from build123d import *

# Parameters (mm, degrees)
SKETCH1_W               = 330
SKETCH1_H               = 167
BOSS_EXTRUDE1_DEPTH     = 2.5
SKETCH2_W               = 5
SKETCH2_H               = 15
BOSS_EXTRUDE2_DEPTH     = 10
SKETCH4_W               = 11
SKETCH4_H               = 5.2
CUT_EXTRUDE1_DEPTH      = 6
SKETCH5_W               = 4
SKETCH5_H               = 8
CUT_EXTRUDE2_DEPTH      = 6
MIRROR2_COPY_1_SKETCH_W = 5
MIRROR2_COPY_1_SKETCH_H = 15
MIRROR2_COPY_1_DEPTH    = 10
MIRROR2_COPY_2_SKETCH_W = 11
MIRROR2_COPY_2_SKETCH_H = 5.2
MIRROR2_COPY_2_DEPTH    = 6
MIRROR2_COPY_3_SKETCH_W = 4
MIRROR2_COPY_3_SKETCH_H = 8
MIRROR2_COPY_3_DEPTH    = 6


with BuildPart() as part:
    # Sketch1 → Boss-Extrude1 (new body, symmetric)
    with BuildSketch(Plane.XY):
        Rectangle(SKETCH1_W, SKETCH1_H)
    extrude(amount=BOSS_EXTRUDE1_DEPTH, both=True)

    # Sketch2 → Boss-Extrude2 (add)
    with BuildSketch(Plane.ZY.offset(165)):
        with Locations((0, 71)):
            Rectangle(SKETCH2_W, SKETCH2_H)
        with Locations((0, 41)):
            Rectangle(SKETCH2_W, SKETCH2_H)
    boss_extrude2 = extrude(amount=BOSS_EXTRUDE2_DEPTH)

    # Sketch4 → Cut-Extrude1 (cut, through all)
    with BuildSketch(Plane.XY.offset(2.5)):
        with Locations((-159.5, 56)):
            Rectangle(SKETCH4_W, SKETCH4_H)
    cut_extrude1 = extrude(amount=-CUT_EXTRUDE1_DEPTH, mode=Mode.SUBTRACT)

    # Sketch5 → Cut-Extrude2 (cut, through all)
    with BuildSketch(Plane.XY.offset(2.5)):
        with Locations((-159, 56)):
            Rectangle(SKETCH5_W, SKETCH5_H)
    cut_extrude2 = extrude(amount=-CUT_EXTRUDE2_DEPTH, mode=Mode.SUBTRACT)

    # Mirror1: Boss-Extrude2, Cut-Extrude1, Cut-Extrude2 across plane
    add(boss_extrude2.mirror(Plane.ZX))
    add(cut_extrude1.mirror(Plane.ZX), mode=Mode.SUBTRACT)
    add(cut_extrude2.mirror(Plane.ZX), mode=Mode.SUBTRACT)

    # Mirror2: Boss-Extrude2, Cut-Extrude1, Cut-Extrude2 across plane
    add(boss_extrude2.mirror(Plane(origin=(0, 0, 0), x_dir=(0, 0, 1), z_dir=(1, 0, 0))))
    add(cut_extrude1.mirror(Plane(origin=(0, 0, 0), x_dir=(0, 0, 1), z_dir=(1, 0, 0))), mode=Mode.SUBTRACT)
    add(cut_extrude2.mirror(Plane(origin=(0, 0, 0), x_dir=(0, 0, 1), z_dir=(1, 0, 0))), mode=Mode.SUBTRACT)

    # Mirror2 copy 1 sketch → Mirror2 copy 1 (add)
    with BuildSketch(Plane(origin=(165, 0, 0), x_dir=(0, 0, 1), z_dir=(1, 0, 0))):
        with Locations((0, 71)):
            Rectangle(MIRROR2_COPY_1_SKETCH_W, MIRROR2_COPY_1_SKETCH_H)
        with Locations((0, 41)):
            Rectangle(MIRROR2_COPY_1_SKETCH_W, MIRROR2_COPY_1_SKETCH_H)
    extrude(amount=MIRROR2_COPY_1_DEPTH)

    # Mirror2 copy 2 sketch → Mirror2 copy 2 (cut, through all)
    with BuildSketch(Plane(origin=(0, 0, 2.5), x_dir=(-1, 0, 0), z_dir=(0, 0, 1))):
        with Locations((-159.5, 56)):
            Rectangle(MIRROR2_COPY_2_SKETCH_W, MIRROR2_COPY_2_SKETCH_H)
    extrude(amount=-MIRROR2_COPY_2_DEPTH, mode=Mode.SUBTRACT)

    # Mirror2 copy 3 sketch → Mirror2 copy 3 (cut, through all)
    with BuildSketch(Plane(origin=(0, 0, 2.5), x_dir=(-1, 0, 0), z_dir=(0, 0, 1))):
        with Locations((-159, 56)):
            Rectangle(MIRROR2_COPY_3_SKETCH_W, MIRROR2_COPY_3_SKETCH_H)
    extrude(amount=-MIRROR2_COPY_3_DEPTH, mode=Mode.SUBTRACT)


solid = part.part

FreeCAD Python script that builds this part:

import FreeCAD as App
import Part
import Sketcher
from FreeCAD import Vector
Q = App.Units.Quantity

doc = App.newDocument("Part")
body = doc.addObject("PartDesign::Body", "Body")

# Sketch on XY plane
sketch1 = body.newObject("Sketcher::SketchObject", "Sketch")
sketch1.AttachmentSupport = (doc.getObject("XY_Plane"), [""])
sketch1.MapMode = "FlatFace"
sketch1.addGeometry([
    Part.LineSegment(Vector(-165, 84, 0), Vector(-165, -84, 0)),
    Part.LineSegment(Vector(-165, -84, 0), Vector(165, -84, 0)),
    Part.LineSegment(Vector(165, -84, 0), Vector(165, 84, 0)),
    Part.LineSegment(Vector(165, 84, 0), Vector(-165, 84, 0)),
], False)
sketch1.addConstraint([
    Sketcher.Constraint("Coincident", 0, 2, 1, 1),
    Sketcher.Constraint("Coincident", 1, 2, 2, 1),
    Sketcher.Constraint("Coincident", 2, 2, 3, 1),
    Sketcher.Constraint("Coincident", 3, 2, 0, 1),
    Sketcher.Constraint("Vertical", 0),
    Sketcher.Constraint("Horizontal", 1),
    Sketcher.Constraint("Vertical", 2),
    Sketcher.Constraint("Horizontal", 3),
    Sketcher.Constraint("Symmetric", 0, 2, 2, 2, -1, 1),
    Sketcher.Constraint("DistanceX", 1, 1, 1, 2, Q("330 mm")),
    Sketcher.Constraint("DistanceY", 0, 2, 0, 1, Q("167 mm")),
])
pad1 = body.newObject("PartDesign::Pad", "Pad")
pad1.Profile = sketch1
pad1.Length = 5
pad1.Midplane = True

# Sketch on YZ plane
sketch2 = body.newObject("Sketcher::SketchObject", "Sketch001")
sketch2.AttachmentSupport = (doc.getObject("YZ_Plane"), [""])
sketch2.MapMode = "FlatFace"
sketch2.AttachmentOffset = App.Placement(Vector(0, 0, -165), App.Rotation())
sketch2.addGeometry([
    Part.LineSegment(Vector(78, -2, 0), Vector(64, -2, 0)),  # 0
    Part.LineSegment(Vector(64, -2, 0), Vector(64, 2, 0)),  # 1
    Part.LineSegment(Vector(64, 2, 0), Vector(78, 2, 0)),  # 2
    Part.LineSegment(Vector(78, 2, 0), Vector(78, -2, 0)),  # 3
    Part.LineSegment(Vector(48, -2, 0), Vector(34, -2, 0)),  # 4
    Part.LineSegment(Vector(34, -2, 0), Vector(34, 2, 0)),  # 5
    Part.LineSegment(Vector(34, 2, 0), Vector(48, 2, 0)),  # 6
    Part.LineSegment(Vector(48, 2, 0), Vector(48, -2, 0)),  # 7
], False)
sketch2.addConstraint([
    Sketcher.Constraint("Coincident", 0, 2, 1, 1),
    Sketcher.Constraint("Coincident", 1, 2, 2, 1),
    Sketcher.Constraint("Coincident", 2, 2, 3, 1),
    Sketcher.Constraint("Coincident", 3, 2, 0, 1),
    Sketcher.Constraint("Coincident", 4, 2, 5, 1),
    Sketcher.Constraint("Coincident", 5, 2, 6, 1),
    Sketcher.Constraint("Coincident", 6, 2, 7, 1),
    Sketcher.Constraint("Coincident", 7, 2, 4, 1),
    Sketcher.Constraint("Horizontal", 0),
    Sketcher.Constraint("Vertical", 1),
    Sketcher.Constraint("Horizontal", 2),
    Sketcher.Constraint("Vertical", 3),
    Sketcher.Constraint("Horizontal", 4),
    Sketcher.Constraint("Vertical", 5),
    Sketcher.Constraint("Horizontal", 6),
    Sketcher.Constraint("Vertical", 7),
    Sketcher.Constraint("Horizontal", 3, 2, 4, 2),
    Sketcher.Constraint("Horizontal", 2, 2, 5, 2),
    Sketcher.Constraint("Equal", 2, 4),
    Sketcher.Constraint("DistanceX", 0, 2, 0, 1, Q("15 mm")),
    Sketcher.Constraint("DistanceY", 1, 1, 1, 2, Q("5 mm")),
    Sketcher.Constraint("DistanceX", 4, 2, 0, 2, Q("30 mm")),
    Sketcher.Constraint("DistanceX", -1, 1, 0, 2, Q("63.5 mm")),
    Sketcher.Constraint("DistanceY", 0, 2, -1, 1, Q("2.5 mm")),
])
pad2 = body.newObject("PartDesign::Pad", "Pad001")
pad2.Profile = sketch2
pad2.Length = 10
pad2.Reversed = True

# Sketch on XY plane
sketch3 = body.newObject("Sketcher::SketchObject", "Sketch002")
sketch3.AttachmentSupport = (doc.getObject("XY_Plane"), [""])
sketch3.MapMode = "FlatFace"
sketch3.AttachmentOffset = App.Placement(Vector(0, 0, 2.5), App.Rotation())
sketch3.addGeometry([
    Part.LineSegment(Vector(-165, 59, 0), Vector(-165, 53, 0)),
    Part.LineSegment(Vector(-165, 53, 0), Vector(-154, 53, 0)),
    Part.LineSegment(Vector(-154, 53, 0), Vector(-154, 59, 0)),
    Part.LineSegment(Vector(-154, 59, 0), Vector(-165, 59, 0)),
], False)
sketch3.addConstraint([
    Sketcher.Constraint("Coincident", 0, 2, 1, 1),
    Sketcher.Constraint("Coincident", 1, 2, 2, 1),
    Sketcher.Constraint("Coincident", 2, 2, 3, 1),
    Sketcher.Constraint("Coincident", 3, 2, 0, 1),
    Sketcher.Constraint("Vertical", 0),
    Sketcher.Constraint("Horizontal", 1),
    Sketcher.Constraint("Vertical", 2),
    Sketcher.Constraint("Horizontal", 3),
    Sketcher.Constraint("DistanceX", 1, 1, 1, 2, Q("11 mm")),
    Sketcher.Constraint("DistanceY", 0, 2, 0, 1, Q("5.2 mm")),
    Sketcher.Constraint("DistanceX", 0, 2, -1, 1, Q("165 mm")),
    Sketcher.Constraint("DistanceY", -1, 1, 0, 2, Q("53.4 mm")),
])
pocket1 = body.newObject("PartDesign::Pocket", "Pocket")
pocket1.Profile = sketch3
pocket1.Type = "ThroughAll"

# Sketch on XY plane
sketch4 = body.newObject("Sketcher::SketchObject", "Sketch003")
sketch4.AttachmentSupport = (doc.getObject("XY_Plane"), [""])
sketch4.MapMode = "FlatFace"
sketch4.AttachmentOffset = App.Placement(Vector(0, 0, 2.5), App.Rotation())
sketch4.addGeometry([
    Part.LineSegment(Vector(-161, 60, 0), Vector(-161, 52, 0)),
    Part.LineSegment(Vector(-161, 52, 0), Vector(-157, 52, 0)),
    Part.LineSegment(Vector(-157, 52, 0), Vector(-157, 60, 0)),
    Part.LineSegment(Vector(-157, 60, 0), Vector(-161, 60, 0)),
], False)
sketch4.addConstraint([
    Sketcher.Constraint("Coincident", 0, 2, 1, 1),
    Sketcher.Constraint("Coincident", 1, 2, 2, 1),
    Sketcher.Constraint("Coincident", 2, 2, 3, 1),
    Sketcher.Constraint("Coincident", 3, 2, 0, 1),
    Sketcher.Constraint("Vertical", 0),
    Sketcher.Constraint("Horizontal", 1),
    Sketcher.Constraint("Vertical", 2),
    Sketcher.Constraint("Horizontal", 3),
    Sketcher.Constraint("DistanceX", 1, 1, 1, 2, Q("4 mm")),
    Sketcher.Constraint("DistanceY", 0, 2, 0, 1, Q("8 mm")),
    Sketcher.Constraint("DistanceX", 0, 2, -1, 1, Q("161 mm")),
    Sketcher.Constraint("DistanceY", -1, 1, 0, 2, Q("52 mm")),
])
pocket2 = body.newObject("PartDesign::Pocket", "Pocket001")
pocket2.Profile = sketch4
pocket2.Type = "ThroughAll"
doc.recompute()

mirrored = body.newObject("PartDesign::Mirrored", "Mirrored")
mirrored.Originals = [pad2, pocket1, pocket2]
mirrored.MirrorPlane = (doc.getObject("XZ_Plane"), [""])
body.Tip = mirrored
doc.recompute()

mirrored2 = body.newObject("PartDesign::Mirrored", "Mirrored001")
mirrored2.Originals = [pad2, pocket1, pocket2]
mirrored2.MirrorPlane = (doc.getObject("YZ_Plane"), [""])
body.Tip = mirrored2

# Sketch on YZ plane
sketch5 = body.newObject("Sketcher::SketchObject", "Sketch004")
sketch5.AttachmentSupport = (doc.getObject("YZ_Plane"), [""])
sketch5.MapMode = "FlatFace"
sketch5.AttachmentOffset = App.Placement(Vector(0, 0, 165), App.Rotation())
sketch5.addGeometry([
    Part.LineSegment(Vector(-78, -2, 0), Vector(-64, -2, 0)),  # 0
    Part.LineSegment(Vector(-64, -2, 0), Vector(-64, 2, 0)),  # 1
    Part.LineSegment(Vector(-64, 2, 0), Vector(-78, 2, 0)),  # 2
    Part.LineSegment(Vector(-78, 2, 0), Vector(-78, -2, 0)),  # 3
    Part.LineSegment(Vector(-48, -2, 0), Vector(-34, -2, 0)),  # 4
    Part.LineSegment(Vector(-34, -2, 0), Vector(-34, 2, 0)),  # 5
    Part.LineSegment(Vector(-34, 2, 0), Vector(-48, 2, 0)),  # 6
    Part.LineSegment(Vector(-48, 2, 0), Vector(-48, -2, 0)),  # 7
], False)
sketch5.addConstraint([
    Sketcher.Constraint("Coincident", 0, 2, 1, 1),
    Sketcher.Constraint("Coincident", 1, 2, 2, 1),
    Sketcher.Constraint("Coincident", 2, 2, 3, 1),
    Sketcher.Constraint("Coincident", 3, 2, 0, 1),
    Sketcher.Constraint("Coincident", 4, 2, 5, 1),
    Sketcher.Constraint("Coincident", 5, 2, 6, 1),
    Sketcher.Constraint("Coincident", 6, 2, 7, 1),
    Sketcher.Constraint("Coincident", 7, 2, 4, 1),
    Sketcher.Constraint("Horizontal", 0),
    Sketcher.Constraint("Vertical", 1),
    Sketcher.Constraint("Horizontal", 2),
    Sketcher.Constraint("Vertical", 3),
    Sketcher.Constraint("Horizontal", 4),
    Sketcher.Constraint("Vertical", 5),
    Sketcher.Constraint("Horizontal", 6),
    Sketcher.Constraint("Vertical", 7),
    Sketcher.Constraint("Horizontal", 3, 2, 4, 2),
    Sketcher.Constraint("Horizontal", 2, 2, 5, 2),
    Sketcher.Constraint("Equal", 2, 4),
    Sketcher.Constraint("DistanceX", 0, 1, 0, 2, Q("15 mm")),
    Sketcher.Constraint("DistanceY", 1, 1, 1, 2, Q("5 mm")),
    Sketcher.Constraint("DistanceX", 0, 2, 4, 2, Q("30 mm")),
    Sketcher.Constraint("DistanceX", 0, 2, -1, 1, Q("63.5 mm")),
    Sketcher.Constraint("DistanceY", 0, 2, -1, 1, Q("2.5 mm")),
])
pad3 = body.newObject("PartDesign::Pad", "Pad002")
pad3.Profile = sketch5
pad3.Length = 10

# Sketch on XY plane
sketch6 = body.newObject("Sketcher::SketchObject", "Sketch005")
sketch6.AttachmentSupport = (doc.getObject("XY_Plane"), [""])
sketch6.MapMode = "FlatFace"
sketch6.AttachmentOffset = App.Placement(Vector(0, 0, 2.5), App.Rotation())
sketch6.addGeometry([
    Part.LineSegment(Vector(165, -59, 0), Vector(165, -53, 0)),
    Part.LineSegment(Vector(165, -53, 0), Vector(154, -53, 0)),
    Part.LineSegment(Vector(154, -53, 0), Vector(154, -59, 0)),
    Part.LineSegment(Vector(154, -59, 0), Vector(165, -59, 0)),
], False)
sketch6.addConstraint([
    Sketcher.Constraint("Coincident", 0, 2, 1, 1),
    Sketcher.Constraint("Coincident", 1, 2, 2, 1),
    Sketcher.Constraint("Coincident", 2, 2, 3, 1),
    Sketcher.Constraint("Coincident", 3, 2, 0, 1),
    Sketcher.Constraint("Vertical", 0),
    Sketcher.Constraint("Horizontal", 1),
    Sketcher.Constraint("Vertical", 2),
    Sketcher.Constraint("Horizontal", 3),
    Sketcher.Constraint("DistanceX", 1, 2, 1, 1, Q("11 mm")),
    Sketcher.Constraint("DistanceY", 0, 1, 0, 2, Q("5.2 mm")),
    Sketcher.Constraint("DistanceX", -1, 1, 0, 2, Q("165 mm")),
    Sketcher.Constraint("DistanceY", 0, 2, -1, 1, Q("53.4 mm")),
])
pocket3 = body.newObject("PartDesign::Pocket", "Pocket002")
pocket3.Profile = sketch6
pocket3.Type = "ThroughAll"

# Sketch on XY plane
sketch7 = body.newObject("Sketcher::SketchObject", "Sketch006")
sketch7.AttachmentSupport = (doc.getObject("XY_Plane"), [""])
sketch7.MapMode = "FlatFace"
sketch7.AttachmentOffset = App.Placement(Vector(0, 0, 2.5), App.Rotation())
sketch7.addGeometry([
    Part.LineSegment(Vector(161, -60, 0), Vector(161, -52, 0)),
    Part.LineSegment(Vector(161, -52, 0), Vector(157, -52, 0)),
    Part.LineSegment(Vector(157, -52, 0), Vector(157, -60, 0)),
    Part.LineSegment(Vector(157, -60, 0), Vector(161, -60, 0)),
], False)
sketch7.addConstraint([
    Sketcher.Constraint("Coincident", 0, 2, 1, 1),
    Sketcher.Constraint("Coincident", 1, 2, 2, 1),
    Sketcher.Constraint("Coincident", 2, 2, 3, 1),
    Sketcher.Constraint("Coincident", 3, 2, 0, 1),
    Sketcher.Constraint("Vertical", 0),
    Sketcher.Constraint("Horizontal", 1),
    Sketcher.Constraint("Vertical", 2),
    Sketcher.Constraint("Horizontal", 3),
    Sketcher.Constraint("DistanceX", 1, 2, 1, 1, Q("4 mm")),
    Sketcher.Constraint("DistanceY", 0, 1, 0, 2, Q("8 mm")),
    Sketcher.Constraint("DistanceX", -1, 1, 0, 2, Q("161 mm")),
    Sketcher.Constraint("DistanceY", 0, 2, -1, 1, Q("52 mm")),
])
pocket4 = body.newObject("PartDesign::Pocket", "Pocket003")
pocket4.Profile = sketch7
pocket4.Type = "ThroughAll"

doc.recompute()
